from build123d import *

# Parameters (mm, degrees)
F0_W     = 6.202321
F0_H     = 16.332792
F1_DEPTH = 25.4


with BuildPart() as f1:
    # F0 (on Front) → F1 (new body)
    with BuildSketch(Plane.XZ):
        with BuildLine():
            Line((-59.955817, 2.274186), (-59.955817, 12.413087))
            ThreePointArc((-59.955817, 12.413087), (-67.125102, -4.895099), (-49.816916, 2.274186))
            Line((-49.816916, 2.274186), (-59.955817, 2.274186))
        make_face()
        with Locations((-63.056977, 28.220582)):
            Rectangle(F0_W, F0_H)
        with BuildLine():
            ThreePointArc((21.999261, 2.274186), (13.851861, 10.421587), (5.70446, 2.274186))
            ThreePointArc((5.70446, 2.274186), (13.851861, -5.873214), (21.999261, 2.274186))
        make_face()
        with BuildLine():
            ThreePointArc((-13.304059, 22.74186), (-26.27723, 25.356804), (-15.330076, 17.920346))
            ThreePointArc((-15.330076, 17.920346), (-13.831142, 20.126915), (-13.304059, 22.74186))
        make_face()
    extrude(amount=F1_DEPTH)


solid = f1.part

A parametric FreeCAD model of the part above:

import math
import FreeCAD as App
import Part
import Sketcher
from FreeCAD import Vector
Q = App.Units.Quantity

doc = App.newDocument("Part")
body = doc.addObject("PartDesign::Body", "Body")
body.AllowCompound = True

sketch1 = body.newObject("Sketcher::SketchObject", "Sketch")
sketch1.AttachmentSupport = (doc.getObject("XZ_Plane"), [""])
sketch1.MapMode = "FlatFace"
sketch1.addGeometry(Part.LineSegment(Vector(-59.955817, 2.274186, 0), Vector(-59.955817, 12.413087, 0)), False)
sketch1.addGeometry(Part.ArcOfCircle(Part.Circle(Vector(-59.955817, 2.274186, 0), Vector(0, 0, 1), 10.138901), math.radians(90.000002), math.radians(359.999998)), False)
sketch1.addGeometry(Part.LineSegment(Vector(-49.816916, 2.274186, 0), Vector(-59.955817, 2.274186, 0)), False)
sketch1.addGeometry(Part.LineSegment(Vector(-66.158137, 36.386978, 0), Vector(-66.158137, 20.054186, 0)), False)
sketch1.addGeometry(Part.LineSegment(Vector(-66.158137, 20.054186, 0), Vector(-59.955816, 20.054186, 0)), False)
sketch1.addGeometry(Part.LineSegment(Vector(-59.955816, 20.054186, 0), Vector(-59.955816, 36.386978, 0)), False)
sketch1.addGeometry(Part.LineSegment(Vector(-59.955816, 36.386978, 0), Vector(-66.158137, 36.386978, 0)), False)
sketch1.addGeometry(Part.Circle(Vector(13.851861, 2.274186, 0), Vector(0, 0, 1), 8.1474), False)
sketch1.addGeometry(Part.ArcOfCircle(Part.Circle(Vector(-20.054186, 22.74186, 0), Vector(0, 0, 1), 6.750127), math.radians(-0.000001), math.radians(314.415369)), False)
sketch1.addGeometry(Part.ArcOfCircle(Part.Circle(Vector(-20.054186, 22.74186, 0), Vector(0, 0, 1), 6.750127), math.radians(-45.584631), math.radians(0)), False)
sketch1.addConstraint(Sketcher.Constraint("Coincident", 0, 2, 1, 1))
sketch1.addConstraint(Sketcher.Constraint("Coincident", 1, 2, 2, 1))
sketch1.addConstraint(Sketcher.Constraint("Coincident", 2, 2, 0, 1))
sketch1.addConstraint(Sketcher.Constraint("Coincident", 3, 2, 4, 1))
sketch1.addConstraint(Sketcher.Constraint("Coincident", 4, 2, 5, 1))
sketch1.addConstraint(Sketcher.Constraint("Coincident", 5, 2, 6, 1))
sketch1.addConstraint(Sketcher.Constraint("Coincident", 6, 2, 3, 1))
sketch1.addConstraint(Sketcher.Constraint("Tangent", 8, 1, 9, 2))
sketch1.addConstraint(Sketcher.Constraint("Coincident", 9, 1, 8, 2))
sketch1.addConstraint(Sketcher.Constraint("Vertical", 0))
sketch1.addConstraint(Sketcher.Constraint("Horizontal", 2))
sketch1.addConstraint(Sketcher.Constraint("Vertical", 3))
sketch1.addConstraint(Sketcher.Constraint("Horizontal", 4))
sketch1.addConstraint(Sketcher.Constraint("Vertical", 5))
sketch1.addConstraint(Sketcher.Constraint("Horizontal", 6))
sketch1.addConstraint(Sketcher.Constraint("Coincident", 2, 2, 1, 3))
sketch1.addConstraint(Sketcher.Constraint("Horizontal", 1, 3, 7, 3))
sketch1.addConstraint(Sketcher.Constraint("Horizontal", 9, 3, 8, 1))
sketch1.addConstraint(Sketcher.Constraint("Vertical", 2, 2, 4, 2))
sketch1.addConstraint(Sketcher.Constraint("DistanceY", 1, 3, 3, 2, Q("0.7 in")))
sketch1.addConstraint(Sketcher.Constraint("Diameter", 7, Q("16.294801 mm")))
sketch1.addConstraint(Sketcher.Constraint("Radius", 1, Q("10.138901 mm")))
sketch1.addConstraint(Sketcher.Constraint("Radius", 8, Q("6.750127 mm")))
sketch1.addConstraint(Sketcher.Constraint("DistanceX", 4, 1, 4, 2, Q("6.202321 mm")))
sketch1.addConstraint(Sketcher.Constraint("DistanceY", 3, 2, 3, 1, Q("16.332792 mm")))
sketch1.addConstraint(Sketcher.Constraint("DistanceX", -1, 1, 7, 3, Q("13.851861 mm")))
sketch1.addConstraint(Sketcher.Constraint("DistanceY", -1, 1, 8, 3, Q("22.74186 mm")))
sketch1.addConstraint(Sketcher.Constraint("DistanceX", 8, 1, -1, 1, Q("13.304059 mm")))
sketch1.addConstraint(Sketcher.Constraint("DistanceX", 1, 3, 8, 3, Q("39.901631 mm")))
sketch1.addConstraint(Sketcher.Constraint("DistanceX", 9, 3, 9, 1, Q("4.72411 mm")))
sketch1.addConstraint(Sketcher.Constraint("DistanceY", 7, 3, 9, 1, Q("15.646159 mm")))
pad1 = body.newObject("PartDesign::Pad", "Pad")
pad1.Profile = sketch1
pad1.Length = Q("1 in")

doc.recompute()
